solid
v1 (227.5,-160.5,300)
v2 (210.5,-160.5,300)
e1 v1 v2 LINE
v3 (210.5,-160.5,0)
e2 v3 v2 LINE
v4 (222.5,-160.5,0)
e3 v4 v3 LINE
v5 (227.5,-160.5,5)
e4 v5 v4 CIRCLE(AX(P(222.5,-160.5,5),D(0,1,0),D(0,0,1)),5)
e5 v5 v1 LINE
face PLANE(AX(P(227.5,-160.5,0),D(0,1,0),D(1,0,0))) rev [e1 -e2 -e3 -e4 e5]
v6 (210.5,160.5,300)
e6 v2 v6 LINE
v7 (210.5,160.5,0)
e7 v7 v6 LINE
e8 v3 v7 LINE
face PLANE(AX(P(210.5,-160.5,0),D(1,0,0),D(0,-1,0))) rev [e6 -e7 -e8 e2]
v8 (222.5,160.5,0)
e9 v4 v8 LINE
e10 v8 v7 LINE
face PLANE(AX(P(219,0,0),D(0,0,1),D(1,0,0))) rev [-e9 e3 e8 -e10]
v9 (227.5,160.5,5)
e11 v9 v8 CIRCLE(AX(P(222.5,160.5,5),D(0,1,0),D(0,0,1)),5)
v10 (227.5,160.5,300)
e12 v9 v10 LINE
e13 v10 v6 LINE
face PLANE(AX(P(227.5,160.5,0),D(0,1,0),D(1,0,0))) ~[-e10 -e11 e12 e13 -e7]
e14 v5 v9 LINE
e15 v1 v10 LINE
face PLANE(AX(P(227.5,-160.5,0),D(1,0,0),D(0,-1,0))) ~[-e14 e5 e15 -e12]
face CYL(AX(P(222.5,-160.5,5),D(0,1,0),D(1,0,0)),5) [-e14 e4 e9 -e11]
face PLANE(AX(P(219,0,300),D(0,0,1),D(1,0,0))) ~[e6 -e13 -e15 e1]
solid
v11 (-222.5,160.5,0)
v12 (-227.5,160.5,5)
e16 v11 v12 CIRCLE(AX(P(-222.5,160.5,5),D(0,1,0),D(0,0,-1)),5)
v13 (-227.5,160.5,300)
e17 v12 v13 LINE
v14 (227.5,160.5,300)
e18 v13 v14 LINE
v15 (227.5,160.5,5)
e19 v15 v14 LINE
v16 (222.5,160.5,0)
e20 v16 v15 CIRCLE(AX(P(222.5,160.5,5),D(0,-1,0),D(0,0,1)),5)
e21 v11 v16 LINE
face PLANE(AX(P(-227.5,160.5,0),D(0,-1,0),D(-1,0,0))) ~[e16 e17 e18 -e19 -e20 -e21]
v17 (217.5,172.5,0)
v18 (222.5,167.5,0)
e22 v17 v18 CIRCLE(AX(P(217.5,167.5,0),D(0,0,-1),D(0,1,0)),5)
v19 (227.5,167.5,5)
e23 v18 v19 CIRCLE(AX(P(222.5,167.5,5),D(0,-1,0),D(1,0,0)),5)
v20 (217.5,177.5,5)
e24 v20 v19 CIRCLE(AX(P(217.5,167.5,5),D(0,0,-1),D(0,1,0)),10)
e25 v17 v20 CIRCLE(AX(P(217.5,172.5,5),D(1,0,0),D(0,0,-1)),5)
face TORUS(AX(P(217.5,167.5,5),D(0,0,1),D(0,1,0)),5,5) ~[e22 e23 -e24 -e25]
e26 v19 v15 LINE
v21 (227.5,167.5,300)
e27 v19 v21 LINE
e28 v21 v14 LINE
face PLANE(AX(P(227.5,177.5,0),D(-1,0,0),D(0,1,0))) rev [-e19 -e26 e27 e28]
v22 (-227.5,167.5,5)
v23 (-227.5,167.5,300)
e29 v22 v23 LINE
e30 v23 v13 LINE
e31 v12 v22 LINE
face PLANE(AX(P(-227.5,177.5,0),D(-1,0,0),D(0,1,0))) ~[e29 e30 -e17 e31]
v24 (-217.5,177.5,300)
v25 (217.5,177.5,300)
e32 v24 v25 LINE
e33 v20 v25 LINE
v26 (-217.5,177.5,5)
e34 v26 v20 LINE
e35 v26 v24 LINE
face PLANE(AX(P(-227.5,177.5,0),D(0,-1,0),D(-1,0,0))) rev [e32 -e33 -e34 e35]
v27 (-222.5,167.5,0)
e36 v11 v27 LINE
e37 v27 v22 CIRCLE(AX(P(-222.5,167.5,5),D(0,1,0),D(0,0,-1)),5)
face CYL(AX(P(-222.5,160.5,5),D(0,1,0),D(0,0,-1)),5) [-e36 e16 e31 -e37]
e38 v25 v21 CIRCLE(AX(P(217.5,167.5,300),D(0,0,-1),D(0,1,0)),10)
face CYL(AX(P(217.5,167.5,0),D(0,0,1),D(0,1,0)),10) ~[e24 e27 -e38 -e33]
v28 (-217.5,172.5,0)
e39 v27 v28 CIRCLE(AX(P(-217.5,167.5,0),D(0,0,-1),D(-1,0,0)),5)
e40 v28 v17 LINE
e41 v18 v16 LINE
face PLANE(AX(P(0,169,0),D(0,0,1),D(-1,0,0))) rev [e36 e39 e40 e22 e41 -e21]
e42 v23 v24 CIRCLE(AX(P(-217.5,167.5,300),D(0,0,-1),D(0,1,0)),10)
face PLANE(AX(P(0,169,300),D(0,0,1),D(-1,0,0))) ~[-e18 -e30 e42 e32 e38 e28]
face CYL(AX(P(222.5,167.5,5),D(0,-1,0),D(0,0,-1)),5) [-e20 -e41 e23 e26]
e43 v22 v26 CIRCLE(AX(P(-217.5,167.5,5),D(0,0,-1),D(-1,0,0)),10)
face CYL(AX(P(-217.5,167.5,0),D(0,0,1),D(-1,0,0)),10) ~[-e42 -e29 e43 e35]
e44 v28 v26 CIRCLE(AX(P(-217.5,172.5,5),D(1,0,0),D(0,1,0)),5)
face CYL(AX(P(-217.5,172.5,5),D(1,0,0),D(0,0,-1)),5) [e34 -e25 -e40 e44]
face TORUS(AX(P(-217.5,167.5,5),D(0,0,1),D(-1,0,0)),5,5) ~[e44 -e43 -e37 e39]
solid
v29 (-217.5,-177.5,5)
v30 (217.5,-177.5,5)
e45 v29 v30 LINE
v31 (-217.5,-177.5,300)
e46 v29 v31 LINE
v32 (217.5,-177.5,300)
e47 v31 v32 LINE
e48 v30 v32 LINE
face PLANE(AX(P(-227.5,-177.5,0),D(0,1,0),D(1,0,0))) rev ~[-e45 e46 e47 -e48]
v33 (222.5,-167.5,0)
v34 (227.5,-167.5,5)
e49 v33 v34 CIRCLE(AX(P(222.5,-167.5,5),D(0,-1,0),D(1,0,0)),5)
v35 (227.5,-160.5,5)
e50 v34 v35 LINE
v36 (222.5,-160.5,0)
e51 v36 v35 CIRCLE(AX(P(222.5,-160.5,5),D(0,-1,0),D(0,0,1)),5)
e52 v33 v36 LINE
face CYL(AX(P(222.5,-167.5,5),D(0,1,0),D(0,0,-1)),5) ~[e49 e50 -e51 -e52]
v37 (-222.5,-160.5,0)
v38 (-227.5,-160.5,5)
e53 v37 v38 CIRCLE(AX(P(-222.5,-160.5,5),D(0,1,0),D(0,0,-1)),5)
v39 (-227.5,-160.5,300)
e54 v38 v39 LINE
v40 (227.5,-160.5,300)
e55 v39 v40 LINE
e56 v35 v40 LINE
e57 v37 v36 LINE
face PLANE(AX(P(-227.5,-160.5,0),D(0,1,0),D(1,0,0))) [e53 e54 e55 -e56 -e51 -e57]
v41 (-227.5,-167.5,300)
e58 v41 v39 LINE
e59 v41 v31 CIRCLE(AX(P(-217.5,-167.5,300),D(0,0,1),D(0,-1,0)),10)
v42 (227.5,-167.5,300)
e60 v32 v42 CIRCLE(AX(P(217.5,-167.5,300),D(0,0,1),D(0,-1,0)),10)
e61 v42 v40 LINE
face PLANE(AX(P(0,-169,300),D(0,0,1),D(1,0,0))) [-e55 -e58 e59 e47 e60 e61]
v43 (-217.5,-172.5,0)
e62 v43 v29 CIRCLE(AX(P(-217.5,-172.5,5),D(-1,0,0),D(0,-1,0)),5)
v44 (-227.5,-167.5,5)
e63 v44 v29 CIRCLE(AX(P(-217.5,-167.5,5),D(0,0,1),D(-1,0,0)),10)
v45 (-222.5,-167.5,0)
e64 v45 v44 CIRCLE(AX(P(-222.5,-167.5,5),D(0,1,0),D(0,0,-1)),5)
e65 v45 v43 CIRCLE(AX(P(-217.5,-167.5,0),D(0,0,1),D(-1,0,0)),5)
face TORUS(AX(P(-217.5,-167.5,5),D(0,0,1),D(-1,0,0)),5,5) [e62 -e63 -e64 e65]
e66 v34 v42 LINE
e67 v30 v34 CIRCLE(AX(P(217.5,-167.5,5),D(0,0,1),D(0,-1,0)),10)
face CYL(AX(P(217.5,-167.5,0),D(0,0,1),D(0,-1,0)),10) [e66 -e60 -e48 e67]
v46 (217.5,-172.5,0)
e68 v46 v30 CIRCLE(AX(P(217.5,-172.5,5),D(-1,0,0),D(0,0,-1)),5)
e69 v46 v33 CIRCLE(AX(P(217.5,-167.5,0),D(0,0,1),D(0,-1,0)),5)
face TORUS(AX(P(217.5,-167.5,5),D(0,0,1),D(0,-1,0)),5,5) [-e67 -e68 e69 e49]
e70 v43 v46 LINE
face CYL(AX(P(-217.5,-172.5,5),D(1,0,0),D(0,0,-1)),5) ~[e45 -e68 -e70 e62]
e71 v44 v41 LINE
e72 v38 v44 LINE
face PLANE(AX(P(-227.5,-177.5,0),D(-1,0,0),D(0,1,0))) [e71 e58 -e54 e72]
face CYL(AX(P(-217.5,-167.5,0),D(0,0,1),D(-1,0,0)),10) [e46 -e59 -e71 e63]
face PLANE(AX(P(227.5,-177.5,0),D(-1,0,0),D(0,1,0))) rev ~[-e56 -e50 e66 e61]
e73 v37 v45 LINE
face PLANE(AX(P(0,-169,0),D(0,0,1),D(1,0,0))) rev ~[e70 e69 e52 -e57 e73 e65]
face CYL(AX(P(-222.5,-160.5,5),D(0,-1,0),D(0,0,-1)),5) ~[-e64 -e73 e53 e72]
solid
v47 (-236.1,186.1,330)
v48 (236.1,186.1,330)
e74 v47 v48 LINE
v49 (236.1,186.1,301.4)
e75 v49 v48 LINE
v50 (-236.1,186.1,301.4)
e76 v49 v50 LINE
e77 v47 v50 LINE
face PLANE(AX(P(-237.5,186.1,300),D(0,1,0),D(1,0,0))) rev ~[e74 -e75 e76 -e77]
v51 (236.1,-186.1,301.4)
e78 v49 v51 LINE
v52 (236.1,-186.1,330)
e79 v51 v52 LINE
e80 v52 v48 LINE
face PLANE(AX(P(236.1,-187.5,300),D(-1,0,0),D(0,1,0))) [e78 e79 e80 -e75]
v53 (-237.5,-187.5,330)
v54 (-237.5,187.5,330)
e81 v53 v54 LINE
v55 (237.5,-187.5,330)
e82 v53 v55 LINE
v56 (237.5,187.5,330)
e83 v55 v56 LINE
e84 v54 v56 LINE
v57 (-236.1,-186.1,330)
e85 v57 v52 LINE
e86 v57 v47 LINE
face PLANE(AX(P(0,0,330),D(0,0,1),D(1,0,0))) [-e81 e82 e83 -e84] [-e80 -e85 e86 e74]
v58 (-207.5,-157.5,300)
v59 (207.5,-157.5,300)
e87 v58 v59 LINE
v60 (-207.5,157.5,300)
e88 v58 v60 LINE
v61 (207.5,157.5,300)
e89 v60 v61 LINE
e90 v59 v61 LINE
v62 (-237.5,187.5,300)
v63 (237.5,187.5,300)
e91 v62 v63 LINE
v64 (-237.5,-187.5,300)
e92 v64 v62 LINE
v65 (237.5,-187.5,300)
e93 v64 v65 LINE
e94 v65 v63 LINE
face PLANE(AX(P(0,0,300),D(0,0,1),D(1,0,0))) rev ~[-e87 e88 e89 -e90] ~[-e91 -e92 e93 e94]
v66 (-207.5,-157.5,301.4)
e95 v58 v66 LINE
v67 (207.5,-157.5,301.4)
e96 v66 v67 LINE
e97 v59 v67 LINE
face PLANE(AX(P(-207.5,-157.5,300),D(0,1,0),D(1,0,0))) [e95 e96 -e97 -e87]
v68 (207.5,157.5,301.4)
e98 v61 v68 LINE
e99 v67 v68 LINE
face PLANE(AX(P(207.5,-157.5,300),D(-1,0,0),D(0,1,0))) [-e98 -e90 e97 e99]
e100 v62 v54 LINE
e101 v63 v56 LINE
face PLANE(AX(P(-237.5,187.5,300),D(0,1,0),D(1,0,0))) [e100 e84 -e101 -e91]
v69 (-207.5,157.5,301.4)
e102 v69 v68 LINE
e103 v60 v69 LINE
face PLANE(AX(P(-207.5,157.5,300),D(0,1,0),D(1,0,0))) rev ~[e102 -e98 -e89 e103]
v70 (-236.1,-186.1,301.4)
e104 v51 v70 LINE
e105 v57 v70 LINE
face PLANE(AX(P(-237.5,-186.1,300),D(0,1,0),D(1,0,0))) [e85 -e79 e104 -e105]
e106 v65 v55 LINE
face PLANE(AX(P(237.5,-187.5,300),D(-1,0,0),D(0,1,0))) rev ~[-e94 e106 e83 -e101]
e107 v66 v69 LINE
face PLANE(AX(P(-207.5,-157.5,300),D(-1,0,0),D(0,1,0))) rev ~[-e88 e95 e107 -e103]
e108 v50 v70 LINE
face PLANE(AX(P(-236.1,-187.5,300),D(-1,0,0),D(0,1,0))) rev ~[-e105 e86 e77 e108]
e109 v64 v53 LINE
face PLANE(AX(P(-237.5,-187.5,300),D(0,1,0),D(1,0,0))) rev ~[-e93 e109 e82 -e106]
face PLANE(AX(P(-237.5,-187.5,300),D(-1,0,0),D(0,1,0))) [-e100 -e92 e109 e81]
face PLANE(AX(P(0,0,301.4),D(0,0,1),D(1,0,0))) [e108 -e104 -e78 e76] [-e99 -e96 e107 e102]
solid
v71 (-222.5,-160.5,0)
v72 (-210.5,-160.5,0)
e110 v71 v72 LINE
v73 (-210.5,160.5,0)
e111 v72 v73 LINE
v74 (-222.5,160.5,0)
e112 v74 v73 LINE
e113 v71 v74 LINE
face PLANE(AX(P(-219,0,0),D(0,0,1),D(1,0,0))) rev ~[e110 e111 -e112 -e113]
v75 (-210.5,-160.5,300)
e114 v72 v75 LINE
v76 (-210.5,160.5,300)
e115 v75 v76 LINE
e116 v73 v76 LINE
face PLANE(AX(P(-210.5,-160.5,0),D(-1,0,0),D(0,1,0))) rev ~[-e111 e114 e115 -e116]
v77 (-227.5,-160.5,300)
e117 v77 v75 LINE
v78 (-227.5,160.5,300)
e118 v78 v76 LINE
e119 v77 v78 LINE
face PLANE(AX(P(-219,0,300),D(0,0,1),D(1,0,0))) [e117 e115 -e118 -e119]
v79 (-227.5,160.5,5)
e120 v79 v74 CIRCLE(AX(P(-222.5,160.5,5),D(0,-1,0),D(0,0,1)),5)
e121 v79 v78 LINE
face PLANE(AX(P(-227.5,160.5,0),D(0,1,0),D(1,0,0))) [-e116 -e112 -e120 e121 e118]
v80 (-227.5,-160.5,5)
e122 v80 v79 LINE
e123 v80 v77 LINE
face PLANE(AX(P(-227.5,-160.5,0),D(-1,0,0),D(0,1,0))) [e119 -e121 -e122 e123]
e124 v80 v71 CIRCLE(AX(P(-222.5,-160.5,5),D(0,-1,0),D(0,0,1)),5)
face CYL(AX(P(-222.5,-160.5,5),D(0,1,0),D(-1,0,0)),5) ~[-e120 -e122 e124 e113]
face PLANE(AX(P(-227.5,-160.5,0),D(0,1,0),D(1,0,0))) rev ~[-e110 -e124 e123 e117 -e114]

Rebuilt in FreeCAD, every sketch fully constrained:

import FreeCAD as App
import Part
import Sketcher
from FreeCAD import Vector


def edges_at(feature, points):
    """Names of the edges that pass closest to the given points."""
    edges = feature.Shape.Edges
    near = lambda p: min(range(len(edges)), key=lambda i: edges[i].distToShape(Part.Vertex(*p))[0])
    return sorted({f"Edge{near(p) + 1}" for p in points})


def faces_at(feature, points):
    """Names of the faces that lie closest to the given points."""
    faces = feature.Shape.Faces
    near = lambda p: min(range(len(faces)), key=lambda i: faces[i].distToShape(Part.Vertex(*p))[0])
    return sorted({f"Face{near(p) + 1}" for p in points})


def add_polygon(sketch, points):
    """Adds a closed chain of lines whose ends are joined by coincident constraints."""
    first, n = sketch.GeometryCount, len(points)
    for a, b in zip(points, points[1:] + points[:1]):
        sketch.addGeometry(Part.LineSegment(App.Vector(*a, 0), App.Vector(*b, 0)), False)
    for i in range(n):
        sketch.addConstraint(Sketcher.Constraint("Coincident", first + i, 2, first + (i + 1) % n, 1))

doc = App.newDocument("Part")
params = doc.addObject("Spreadsheet::Sheet", "Params")
for row, (alias, value) in enumerate([
    ("sketch1_width", "455 mm"),
    ("sketch1_height", "17 mm"),
    ("pad1_length", "300 mm"),
    ("fillet_radius", "10 mm"),
    ("fillet2_radius", "5 mm"),
    ("sketch2_width", "17 mm"),
    ("sketch2_height", "321 mm"),
    ("pad2_length", "300 mm"),
    ("fillet3_radius", "5 mm"),
    ("sketch3_width", "475 mm"),
    ("sketch3_width2", "415 mm"),
    ("sketch3_height", "375 mm"),
    ("sketch3_height2", "315 mm"),
    ("pad3_length", "30 mm"),
    ("thickness_wall", "1.4 mm"),
], start=1):
    params.set(f"A{row}", alias)
    params.set(f"B{row}", "=" + value)
    params.setAlias(f"B{row}", alias)

body = doc.addObject("PartDesign::Body", "Body")

# Sketch on XY plane
sketch1 = doc.addObject("Sketcher::SketchObject", "Sketch")
body.addObject(sketch1)
sketch1.AttachmentSupport = (doc.XY_Plane, [""])
sketch1.MapMode = "FlatFace"
add_polygon(sketch1, [(-228, -160), (-228, -178), (228, -178), (228, -160)])  # lines 0-3
sketch1.addConstraint([
    Sketcher.Constraint("Vertical", 0),
    Sketcher.Constraint("Horizontal", 1),
    Sketcher.Constraint("Vertical", 2),
    Sketcher.Constraint("Horizontal", 3),
    Sketcher.Constraint("DistanceX", 1, 1, 1, 2, 455.0),
    Sketcher.Constraint("DistanceY", 0, 2, 0, 1, 17.0),
    Sketcher.Constraint("DistanceX", 0, 2, -1, 1, 227.5),
    Sketcher.Constraint("DistanceY", 0, 2, -1, 1, 177.5),
])
sketch1.setExpression("Constraints[8]", "Params.sketch1_width")
sketch1.setExpression("Constraints[9]", "Params.sketch1_height")
pad1 = doc.addObject("PartDesign::Pad", "Pad")
body.addObject(pad1)
pad1.Profile = sketch1
pad1.setExpression("Length", "Params.pad1_length")
doc.recompute()

fillet = doc.addObject("PartDesign::Fillet", "Fillet")
body.addObject(fillet)
fillet.Base = (pad1, edges_at(pad1, [(-227.5, -177.5, 150), (227.5, -177.5, 150)]))
fillet.setExpression("Radius", "Params.fillet_radius")
doc.recompute()

fillet2 = doc.addObject("PartDesign::Fillet", "Fillet001")
body.addObject(fillet2)
fillet2.Base = (fillet, edges_at(fillet, [(0, -177.5, 0)]))
fillet2.setExpression("Radius", "Params.fillet2_radius")
body2 = doc.addObject("PartDesign::Body", "Body001")

# Sketch on XY plane
sketch2 = doc.addObject("Sketcher::SketchObject", "Sketch001")
body2.addObject(sketch2)
sketch2.AttachmentSupport = (doc.getObject("XY_Plane001"), [""])
sketch2.MapMode = "FlatFace"
add_polygon(sketch2, [(-228, 160), (-228, -160), (-210, -160), (-210, 160)])  # lines 0-3
sketch2.addConstraint([
    Sketcher.Constraint("Vertical", 0),
    Sketcher.Constraint("Horizontal", 1),
    Sketcher.Constraint("Vertical", 2),
    Sketcher.Constraint("Horizontal", 3),
    Sketcher.Constraint("DistanceX", 1, 1, 1, 2, 17.0),
    Sketcher.Constraint("DistanceY", 0, 2, 0, 1, 321.0),
    Sketcher.Constraint("DistanceX", 0, 2, -1, 1, 227.5),
    Sketcher.Constraint("DistanceY", 0, 2, -1, 1, 160.5),
])
sketch2.setExpression("Constraints[8]", "Params.sketch2_width")
sketch2.setExpression("Constraints[9]", "Params.sketch2_height")
pad2 = doc.addObject("PartDesign::Pad", "Pad001")
body2.addObject(pad2)
pad2.Profile = sketch2
pad2.setExpression("Length", "Params.pad2_length")
doc.recompute()

fillet3 = doc.addObject("PartDesign::Fillet", "Fillet002")
body2.addObject(fillet3)
fillet3.Base = (pad2, edges_at(pad2, [(-227.5, 0, 0)]))
fillet3.setExpression("Radius", "Params.fillet3_radius")
body3 = doc.addObject("PartDesign::Body", "Body002")
doc.recompute()

mirroring = doc.addObject("Part::Mirroring", "Mirroring")
mirroring.Source = body
mirroring.Base = Vector(0, 0, 0)
mirroring.Normal = Vector(0, -1, 0)
body3.BaseFeature = mirroring
doc.recompute()
body4 = doc.addObject("PartDesign::Body", "Body003")
doc.recompute()

mirroring2 = doc.addObject("Part::Mirroring", "Mirroring001")
mirroring2.Source = body2
mirroring2.Base = Vector(0, 0, 0)
mirroring2.Normal = Vector(1, 0, 0)
body4.BaseFeature = mirroring2
doc.recompute()
body5 = doc.addObject("PartDesign::Body", "Body004")

# Sketch on XY plane
sketch3 = doc.addObject("Sketcher::SketchObject", "Sketch002")
body5.addObject(sketch3)
sketch3.AttachmentSupport = (doc.getObject("XY_Plane004"), [""])
sketch3.MapMode = "FlatFace"
sketch3.AttachmentOffset = App.Placement(Vector(0, 0, 300), App.Rotation())
add_polygon(sketch3, [(-238, 188), (-238, -188), (238, -188), (238, 188)])  # lines 0-3
add_polygon(sketch3, [(208, -158), (-208, -158), (-208, 158), (208, 158)])  # lines 4-7
sketch3.addConstraint([
    Sketcher.Constraint("Vertical", 0),
    Sketcher.Constraint("Horizontal", 1),
    Sketcher.Constraint("Vertical", 2),
    Sketcher.Constraint("Horizontal", 3),
    Sketcher.Constraint("Horizontal", 4),
    Sketcher.Constraint("Vertical", 5),
    Sketcher.Constraint("Horizontal", 6),
    Sketcher.Constraint("Vertical", 7),
    Sketcher.Constraint("Symmetric", 0, 2, 2, 2, -1, 1),
    Sketcher.Constraint("Symmetric", 4, 2, 6, 2, -1, 1),
    Sketcher.Constraint("DistanceX", 1, 1, 1, 2, 475.0),
    Sketcher.Constraint("DistanceX", 4, 2, 4, 1, 415.0),
    Sketcher.Constraint("DistanceY", 0, 2, 0, 1, 375.0),
    Sketcher.Constraint("DistanceY", 5, 1, 5, 2, 315.0),
])
sketch3.setExpression("Constraints[18]", "Params.sketch3_width")
sketch3.setExpression("Constraints[19]", "Params.sketch3_width2")
sketch3.setExpression("Constraints[20]", "Params.sketch3_height")
sketch3.setExpression("Constraints[21]", "Params.sketch3_height2")
pad3 = doc.addObject("PartDesign::Pad", "Pad002")
body5.addObject(pad3)
pad3.Profile = sketch3
pad3.setExpression("Length", "Params.pad3_length")
doc.recompute()

thickness = doc.addObject("PartDesign::Thickness", "Thickness")
body5.addObject(thickness)
thickness.Base = (pad3, faces_at(pad3, [
    (-223.25, 0, 330),
    (0, 157.5, 315),
    (-207.5, 0, 315),
    (207.5, 0, 315),
    (0, -157.5, 315),
]))
thickness.setExpression("Value", "Params.thickness_wall")
thickness.Reversed = True
thickness.Join = "Arc"
mirroring.Visibility = False
mirroring2.Visibility = False

doc.recompute()
